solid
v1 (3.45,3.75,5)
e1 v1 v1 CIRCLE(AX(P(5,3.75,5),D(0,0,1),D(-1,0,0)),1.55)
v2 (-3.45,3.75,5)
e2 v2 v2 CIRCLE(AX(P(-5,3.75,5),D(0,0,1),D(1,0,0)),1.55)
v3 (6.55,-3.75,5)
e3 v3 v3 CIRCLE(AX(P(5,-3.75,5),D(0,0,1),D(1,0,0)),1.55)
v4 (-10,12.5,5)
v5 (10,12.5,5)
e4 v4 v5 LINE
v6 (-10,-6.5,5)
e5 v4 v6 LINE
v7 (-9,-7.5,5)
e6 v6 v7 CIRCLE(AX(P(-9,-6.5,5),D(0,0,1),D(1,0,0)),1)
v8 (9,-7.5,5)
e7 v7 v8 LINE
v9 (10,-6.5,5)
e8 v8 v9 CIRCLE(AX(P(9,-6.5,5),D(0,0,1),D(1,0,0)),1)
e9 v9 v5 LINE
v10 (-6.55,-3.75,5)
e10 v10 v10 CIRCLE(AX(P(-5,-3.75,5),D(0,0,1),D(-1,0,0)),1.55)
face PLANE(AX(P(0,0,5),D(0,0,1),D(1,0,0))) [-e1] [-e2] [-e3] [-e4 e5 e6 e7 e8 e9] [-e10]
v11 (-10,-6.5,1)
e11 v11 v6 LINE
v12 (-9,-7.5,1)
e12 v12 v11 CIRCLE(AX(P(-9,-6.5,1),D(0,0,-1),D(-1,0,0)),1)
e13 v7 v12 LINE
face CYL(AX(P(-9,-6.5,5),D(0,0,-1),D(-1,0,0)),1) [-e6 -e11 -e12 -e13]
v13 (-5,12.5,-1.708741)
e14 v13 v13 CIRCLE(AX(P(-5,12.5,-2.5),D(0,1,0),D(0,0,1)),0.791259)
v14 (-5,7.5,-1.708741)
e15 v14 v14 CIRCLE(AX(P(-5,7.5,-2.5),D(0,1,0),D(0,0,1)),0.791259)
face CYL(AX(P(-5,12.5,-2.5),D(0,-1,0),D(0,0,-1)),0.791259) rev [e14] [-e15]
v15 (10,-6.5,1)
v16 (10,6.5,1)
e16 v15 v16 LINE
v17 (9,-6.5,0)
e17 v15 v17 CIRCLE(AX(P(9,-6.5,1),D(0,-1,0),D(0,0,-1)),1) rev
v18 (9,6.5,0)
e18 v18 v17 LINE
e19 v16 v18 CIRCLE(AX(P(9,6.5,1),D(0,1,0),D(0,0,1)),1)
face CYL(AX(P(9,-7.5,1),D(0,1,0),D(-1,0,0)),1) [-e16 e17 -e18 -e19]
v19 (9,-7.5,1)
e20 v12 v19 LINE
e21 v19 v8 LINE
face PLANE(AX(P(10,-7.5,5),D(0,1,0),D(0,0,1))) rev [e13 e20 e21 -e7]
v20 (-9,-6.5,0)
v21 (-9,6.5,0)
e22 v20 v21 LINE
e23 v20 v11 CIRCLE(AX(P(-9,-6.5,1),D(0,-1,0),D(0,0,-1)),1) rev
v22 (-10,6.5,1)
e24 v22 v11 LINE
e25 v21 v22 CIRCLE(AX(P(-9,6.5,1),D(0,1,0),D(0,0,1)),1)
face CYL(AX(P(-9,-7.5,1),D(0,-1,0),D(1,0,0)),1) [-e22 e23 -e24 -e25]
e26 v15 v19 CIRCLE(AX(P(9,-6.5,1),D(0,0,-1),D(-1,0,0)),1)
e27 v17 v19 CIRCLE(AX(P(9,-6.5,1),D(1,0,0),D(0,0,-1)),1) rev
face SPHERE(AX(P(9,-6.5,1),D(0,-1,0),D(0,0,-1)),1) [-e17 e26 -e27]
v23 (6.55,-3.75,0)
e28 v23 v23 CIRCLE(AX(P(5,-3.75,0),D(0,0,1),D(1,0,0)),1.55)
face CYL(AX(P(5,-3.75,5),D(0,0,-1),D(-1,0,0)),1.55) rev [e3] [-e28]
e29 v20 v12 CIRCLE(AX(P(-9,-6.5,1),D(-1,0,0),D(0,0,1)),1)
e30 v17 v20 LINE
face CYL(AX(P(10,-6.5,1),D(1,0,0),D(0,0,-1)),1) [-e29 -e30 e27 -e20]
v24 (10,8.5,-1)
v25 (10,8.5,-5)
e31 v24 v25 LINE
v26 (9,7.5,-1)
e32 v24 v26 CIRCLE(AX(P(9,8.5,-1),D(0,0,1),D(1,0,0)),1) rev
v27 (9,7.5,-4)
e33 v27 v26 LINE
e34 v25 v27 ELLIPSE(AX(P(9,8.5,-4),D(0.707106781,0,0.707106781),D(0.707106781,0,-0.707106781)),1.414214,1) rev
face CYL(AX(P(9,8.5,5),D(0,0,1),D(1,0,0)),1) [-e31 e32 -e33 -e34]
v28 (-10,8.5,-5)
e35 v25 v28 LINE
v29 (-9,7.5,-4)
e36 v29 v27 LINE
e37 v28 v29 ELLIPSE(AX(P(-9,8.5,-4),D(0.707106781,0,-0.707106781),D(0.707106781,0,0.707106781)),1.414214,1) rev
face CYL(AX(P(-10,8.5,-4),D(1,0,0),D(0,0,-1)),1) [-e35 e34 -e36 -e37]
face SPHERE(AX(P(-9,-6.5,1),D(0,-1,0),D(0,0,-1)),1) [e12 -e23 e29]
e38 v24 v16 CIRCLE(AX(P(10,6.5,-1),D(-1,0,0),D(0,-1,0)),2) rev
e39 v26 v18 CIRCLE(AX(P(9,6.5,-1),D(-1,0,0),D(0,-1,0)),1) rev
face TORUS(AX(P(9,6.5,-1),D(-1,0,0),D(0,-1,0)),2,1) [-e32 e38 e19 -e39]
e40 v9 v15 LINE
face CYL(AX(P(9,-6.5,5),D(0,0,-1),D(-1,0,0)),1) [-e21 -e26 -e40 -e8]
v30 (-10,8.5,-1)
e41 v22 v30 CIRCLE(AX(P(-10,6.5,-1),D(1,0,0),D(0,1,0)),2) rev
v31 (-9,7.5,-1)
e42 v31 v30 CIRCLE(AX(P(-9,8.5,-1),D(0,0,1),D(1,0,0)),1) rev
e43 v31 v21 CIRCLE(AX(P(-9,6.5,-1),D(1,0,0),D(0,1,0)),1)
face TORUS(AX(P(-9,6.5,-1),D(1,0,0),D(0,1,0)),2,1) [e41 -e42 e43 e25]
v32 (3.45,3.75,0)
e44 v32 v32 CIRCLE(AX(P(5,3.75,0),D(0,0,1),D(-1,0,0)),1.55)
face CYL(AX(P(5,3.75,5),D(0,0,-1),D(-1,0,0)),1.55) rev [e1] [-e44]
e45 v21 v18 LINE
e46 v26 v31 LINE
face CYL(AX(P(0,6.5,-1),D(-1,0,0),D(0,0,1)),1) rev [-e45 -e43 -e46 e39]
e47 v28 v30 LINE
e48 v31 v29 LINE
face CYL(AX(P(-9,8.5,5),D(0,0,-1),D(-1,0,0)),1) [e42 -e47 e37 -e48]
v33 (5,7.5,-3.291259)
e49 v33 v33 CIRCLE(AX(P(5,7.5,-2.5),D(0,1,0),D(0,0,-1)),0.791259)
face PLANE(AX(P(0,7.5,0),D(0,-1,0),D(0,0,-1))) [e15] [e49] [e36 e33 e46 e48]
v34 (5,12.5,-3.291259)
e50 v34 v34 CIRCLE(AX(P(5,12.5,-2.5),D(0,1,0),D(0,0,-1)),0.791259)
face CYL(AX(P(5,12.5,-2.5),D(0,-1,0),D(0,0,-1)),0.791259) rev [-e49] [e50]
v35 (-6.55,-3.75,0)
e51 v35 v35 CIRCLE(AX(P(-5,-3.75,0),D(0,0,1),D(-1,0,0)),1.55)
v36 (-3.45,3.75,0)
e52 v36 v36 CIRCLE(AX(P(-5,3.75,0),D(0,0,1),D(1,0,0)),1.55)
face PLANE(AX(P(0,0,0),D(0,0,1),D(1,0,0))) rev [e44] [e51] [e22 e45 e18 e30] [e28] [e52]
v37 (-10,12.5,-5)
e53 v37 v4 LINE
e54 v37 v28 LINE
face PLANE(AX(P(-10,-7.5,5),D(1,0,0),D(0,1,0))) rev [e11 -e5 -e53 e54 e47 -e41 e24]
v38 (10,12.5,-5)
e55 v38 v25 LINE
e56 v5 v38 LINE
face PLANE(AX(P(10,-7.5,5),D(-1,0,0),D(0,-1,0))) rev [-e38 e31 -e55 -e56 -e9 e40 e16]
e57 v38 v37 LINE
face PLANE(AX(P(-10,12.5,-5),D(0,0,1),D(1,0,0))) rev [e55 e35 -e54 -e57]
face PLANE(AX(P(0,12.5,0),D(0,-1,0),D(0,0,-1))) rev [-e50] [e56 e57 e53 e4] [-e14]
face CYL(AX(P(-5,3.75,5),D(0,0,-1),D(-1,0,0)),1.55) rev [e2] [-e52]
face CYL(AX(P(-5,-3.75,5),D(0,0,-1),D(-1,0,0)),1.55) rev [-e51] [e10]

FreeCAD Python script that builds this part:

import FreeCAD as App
import Part
import Sketcher
from FreeCAD import Vector


def edges_at(feature, points):
    """Names of the edges that pass closest to the given points."""
    edges = feature.Shape.Edges
    near = lambda p: min(range(len(edges)), key=lambda i: edges[i].distToShape(Part.Vertex(*p))[0])
    return sorted({f"Edge{near(p) + 1}" for p in points})

doc = App.newDocument("Part")
body = doc.addObject("PartDesign::Body", "Body")

# Sketch on XY plane
sketch1 = body.newObject("Sketcher::SketchObject", "Sketch")
sketch1.AttachmentSupport = (doc.getObject("XY_Plane"), [""])
sketch1.MapMode = "FlatFace"
sketch1.addGeometry([
    Part.LineSegment(Vector(-10, 7.5, 0), Vector(-10, -7.5, 0)),  # 0
    Part.LineSegment(Vector(-10, -7.5, 0), Vector(10, -7.5, 0)),  # 1
    Part.LineSegment(Vector(10, -7.5, 0), Vector(10, 7.5, 0)),  # 2
    Part.LineSegment(Vector(10, 7.5, 0), Vector(-10, 7.5, 0)),  # 3
    Part.Circle(Vector(-5, -3.75, 0), Vector(0, 0, 1), 1.55),  # 4
    Part.Circle(Vector(5, -3.75, 0), Vector(0, 0, 1), 1.55),  # 5
    Part.Circle(Vector(-5, 3.75, 0), Vector(0, 0, 1), 1.55),  # 6
    Part.Circle(Vector(5, 3.75, 0), Vector(0, 0, 1), 1.55),  # 7
], False)
sketch1.addConstraint([
    Sketcher.Constraint("Coincident", 0, 2, 1, 1),
    Sketcher.Constraint("Coincident", 1, 2, 2, 1),
    Sketcher.Constraint("Coincident", 2, 2, 3, 1),
    Sketcher.Constraint("Coincident", 3, 2, 0, 1),
    Sketcher.Constraint("Vertical", 0),
    Sketcher.Constraint("Horizontal", 1),
    Sketcher.Constraint("Vertical", 2),
    Sketcher.Constraint("Horizontal", 3),
    Sketcher.Constraint("Equal", 4, 5),
    Sketcher.Constraint("Equal", 5, 6),
    Sketcher.Constraint("Equal", 6, 7),
    Sketcher.Constraint("Symmetric", 5, 3, 6, 3, -1, 1),
    Sketcher.Constraint("Symmetric", 4, 3, 7, 3, -1, 1),
    Sketcher.Constraint("Symmetric", 0, 2, 2, 2, -1, 1),
    Sketcher.Constraint("Symmetric", 4, 3, 5, 3, -2),
    Sketcher.Constraint("Diameter", 4, 3.1),
    Sketcher.Constraint("DistanceX", 1, 1, 1, 2, 20.0),
    Sketcher.Constraint("DistanceY", 0, 2, 0, 1, 15.0),
    Sketcher.Constraint("DistanceX", 4, 3, -1, 1, 5.0),
    Sketcher.Constraint("DistanceY", 4, 3, 6, 3, 7.5),
])
pad1 = body.newObject("PartDesign::Pad", "Pad")
pad1.Profile = sketch1
pad1.Length = 5

# Sketch on XZ plane
sketch2 = body.newObject("Sketcher::SketchObject", "Sketch001")
sketch2.AttachmentSupport = (doc.getObject("XZ_Plane"), [""])
sketch2.MapMode = "FlatFace"
sketch2.AttachmentOffset = App.Placement(Vector(0, 0, -7.5), App.Rotation())
sketch2.addGeometry([
    Part.LineSegment(Vector(-10, -5, 0), Vector(-10, 5, 0)),  # 0
    Part.LineSegment(Vector(-10, 5, 0), Vector(10, 5, 0)),  # 1
    Part.LineSegment(Vector(10, 5, 0), Vector(10, -5, 0)),  # 2
    Part.LineSegment(Vector(10, -5, 0), Vector(-10, -5, 0)),  # 3
    Part.Circle(Vector(-5, -2.5, 0), Vector(0, 0, 1), 0.791259),  # 4
    Part.Circle(Vector(5, -2.5, 0), Vector(0, 0, 1), 0.791259),  # 5
], False)
sketch2.addConstraint([
    Sketcher.Constraint("Coincident", 0, 2, 1, 1),
    Sketcher.Constraint("Coincident", 1, 2, 2, 1),
    Sketcher.Constraint("Coincident", 2, 2, 3, 1),
    Sketcher.Constraint("Coincident", 3, 2, 0, 1),
    Sketcher.Constraint("Vertical", 0),
    Sketcher.Constraint("Horizontal", 1),
    Sketcher.Constraint("Vertical", 2),
    Sketcher.Constraint("Horizontal", 3),
    Sketcher.Constraint("Equal", 4, 5),
    Sketcher.Constraint("Symmetric", 0, 2, 2, 2, -1, 1),
    Sketcher.Constraint("Symmetric", 4, 3, 5, 3, -2),
    Sketcher.Constraint("DistanceX", 1, 1, 1, 2, 20.0),
    Sketcher.Constraint("DistanceY", 0, 1, 0, 2, 10.0),
    Sketcher.Constraint("DistanceX", 4, 3, -1, 1, 5.0),
    Sketcher.Constraint("DistanceY", 4, 3, -1, 1, 2.5),
    Sketcher.Constraint("Diameter", 4, 1.582518),
])
pad2 = body.newObject("PartDesign::Pad", "Pad001")
pad2.Profile = sketch2
pad2.Length = 5
pad2.Reversed = True
doc.recompute()

fillet = body.newObject("PartDesign::Fillet", "Fillet")
fillet.Base = (pad2, edges_at(pad2, [
    (-10, 7.5, -2.5),
    (10, 7.5, -2.5),
    (0, 7.5, -5),
    (0, 7.5, 0),
    (10, 0, 0),
    (0, -7.5, 0),
    (-10, 0, 0),
    (10, -7.5, 2.5),
    (-10, -7.5, 2.5),
]))
fillet.Radius = 1

doc.recompute()
